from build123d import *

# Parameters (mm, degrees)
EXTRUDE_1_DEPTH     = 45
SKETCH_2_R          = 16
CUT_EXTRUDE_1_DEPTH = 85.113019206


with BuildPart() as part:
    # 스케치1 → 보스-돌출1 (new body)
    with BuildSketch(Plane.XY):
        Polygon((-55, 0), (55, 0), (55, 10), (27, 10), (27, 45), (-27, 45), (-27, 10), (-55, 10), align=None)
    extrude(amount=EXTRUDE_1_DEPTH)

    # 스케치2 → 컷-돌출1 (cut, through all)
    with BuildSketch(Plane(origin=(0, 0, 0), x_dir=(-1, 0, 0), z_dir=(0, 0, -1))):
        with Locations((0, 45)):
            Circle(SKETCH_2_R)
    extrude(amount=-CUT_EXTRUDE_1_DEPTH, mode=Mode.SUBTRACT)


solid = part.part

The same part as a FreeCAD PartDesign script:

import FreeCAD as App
import Part
import Sketcher
Q = App.Units.Quantity

doc = App.newDocument("Part")
params = doc.addObject("Spreadsheet::Sheet", "Params")
for row, (alias, value) in enumerate([
    ("sketch1_width", "110 mm"),
    ("sketch1_width2", "28 mm"),
    ("sketch1_height", "10 mm"),
    ("sketch1_height2", "35 mm"),
    ("pad1_length", "45 mm"),
    ("sketch2_diameter", "32 mm"),
], start=1):
    params.set(f"A{row}", alias)
    params.set(f"B{row}", "=" + value)
    params.setAlias(f"B{row}", alias)

body = doc.addObject("PartDesign::Body", "Body")

sketch1 = body.newObject("Sketcher::SketchObject", "Sketch")
sketch1.AttachmentSupport = (doc.getObject("XY_Plane"), [""])
sketch1.MapMode = "FlatFace"
sketch1.addGeometry(Part.LineSegment(App.Vector(-55, 0, 0), App.Vector(55, 0, 0)), False)
sketch1.addGeometry(Part.LineSegment(App.Vector(55, 0, 0), App.Vector(55, 10, 0)), False)
sketch1.addGeometry(Part.LineSegment(App.Vector(55, 10, 0), App.Vector(27, 10, 0)), False)
sketch1.addGeometry(Part.LineSegment(App.Vector(27, 10, 0), App.Vector(27, 45, 0)), False)
sketch1.addGeometry(Part.LineSegment(App.Vector(27, 45, 0), App.Vector(-27, 45, 0)), False)
sketch1.addGeometry(Part.LineSegment(App.Vector(-27, 45, 0), App.Vector(-27, 10, 0)), False)
sketch1.addGeometry(Part.LineSegment(App.Vector(-27, 10, 0), App.Vector(-55, 10, 0)), False)
sketch1.addGeometry(Part.LineSegment(App.Vector(-55, 10, 0), App.Vector(-55, 0, 0)), False)
sketch1.addConstraint(Sketcher.Constraint("Coincident", 0, 2, 1, 1))
sketch1.addConstraint(Sketcher.Constraint("Coincident", 1, 2, 2, 1))
sketch1.addConstraint(Sketcher.Constraint("Coincident", 2, 2, 3, 1))
sketch1.addConstraint(Sketcher.Constraint("Coincident", 3, 2, 4, 1))
sketch1.addConstraint(Sketcher.Constraint("Coincident", 4, 2, 5, 1))
sketch1.addConstraint(Sketcher.Constraint("Coincident", 5, 2, 6, 1))
sketch1.addConstraint(Sketcher.Constraint("Coincident", 6, 2, 7, 1))
sketch1.addConstraint(Sketcher.Constraint("Coincident", 7, 2, 0, 1))
sketch1.addConstraint(Sketcher.Constraint("Horizontal", 0))
sketch1.addConstraint(Sketcher.Constraint("Vertical", 1))
sketch1.addConstraint(Sketcher.Constraint("Horizontal", 2))
sketch1.addConstraint(Sketcher.Constraint("Vertical", 3))
sketch1.addConstraint(Sketcher.Constraint("Horizontal", 4))
sketch1.addConstraint(Sketcher.Constraint("Vertical", 5))
sketch1.addConstraint(Sketcher.Constraint("Horizontal", 6))
sketch1.addConstraint(Sketcher.Constraint("Vertical", 7))
sketch1.addConstraint(Sketcher.Constraint("Symmetric", 0, 2, 7, 2, -1, 1))
sketch1.addConstraint(Sketcher.Constraint("Symmetric", 2, 2, 5, 2, -2))
sketch1.addConstraint(Sketcher.Constraint("DistanceX", 0, 1, 0, 2, Q("110 mm")))
sketch1.addConstraint(Sketcher.Constraint("DistanceX", 2, 2, 2, 1, Q("28 mm")))
sketch1.addConstraint(Sketcher.Constraint("DistanceY", 1, 1, 1, 2, Q("10 mm")))
sketch1.addConstraint(Sketcher.Constraint("DistanceY", 3, 1, 3, 2, Q("35 mm")))
sketch1.setExpression("Constraints[18]", "Params.sketch1_width")
sketch1.setExpression("Constraints[19]", "Params.sketch1_width2")
sketch1.setExpression("Constraints[20]", "Params.sketch1_height")
sketch1.setExpression("Constraints[21]", "Params.sketch1_height2")
pad1 = body.newObject("PartDesign::Pad", "Pad")
pad1.Profile = sketch1
pad1.setExpression("Length", "Params.pad1_length")

sketch2 = body.newObject("Sketcher::SketchObject", "Sketch001")
sketch2.AttachmentSupport = (doc.getObject("XY_Plane"), [""])
sketch2.MapMode = "FlatFace"
sketch2.addGeometry(Part.Circle(App.Vector(0, 45, 0), App.Vector(0, 0, 1), 16), False)
sketch2.addConstraint(Sketcher.Constraint("PointOnObject", 0, 3, -2))
sketch2.addConstraint(Sketcher.Constraint("Diameter", 0, Q("32 mm")))
sketch2.addConstraint(Sketcher.Constraint("DistanceY", -1, 1, 0, 3, Q("45 mm")))
sketch2.setExpression("Constraints[1]", "Params.sketch2_diameter")
pocket1 = body.newObject("PartDesign::Pocket", "Pocket")
pocket1.Profile = sketch2
pocket1.Type = "ThroughAll"
pocket1.Reversed = True

doc.recompute()
